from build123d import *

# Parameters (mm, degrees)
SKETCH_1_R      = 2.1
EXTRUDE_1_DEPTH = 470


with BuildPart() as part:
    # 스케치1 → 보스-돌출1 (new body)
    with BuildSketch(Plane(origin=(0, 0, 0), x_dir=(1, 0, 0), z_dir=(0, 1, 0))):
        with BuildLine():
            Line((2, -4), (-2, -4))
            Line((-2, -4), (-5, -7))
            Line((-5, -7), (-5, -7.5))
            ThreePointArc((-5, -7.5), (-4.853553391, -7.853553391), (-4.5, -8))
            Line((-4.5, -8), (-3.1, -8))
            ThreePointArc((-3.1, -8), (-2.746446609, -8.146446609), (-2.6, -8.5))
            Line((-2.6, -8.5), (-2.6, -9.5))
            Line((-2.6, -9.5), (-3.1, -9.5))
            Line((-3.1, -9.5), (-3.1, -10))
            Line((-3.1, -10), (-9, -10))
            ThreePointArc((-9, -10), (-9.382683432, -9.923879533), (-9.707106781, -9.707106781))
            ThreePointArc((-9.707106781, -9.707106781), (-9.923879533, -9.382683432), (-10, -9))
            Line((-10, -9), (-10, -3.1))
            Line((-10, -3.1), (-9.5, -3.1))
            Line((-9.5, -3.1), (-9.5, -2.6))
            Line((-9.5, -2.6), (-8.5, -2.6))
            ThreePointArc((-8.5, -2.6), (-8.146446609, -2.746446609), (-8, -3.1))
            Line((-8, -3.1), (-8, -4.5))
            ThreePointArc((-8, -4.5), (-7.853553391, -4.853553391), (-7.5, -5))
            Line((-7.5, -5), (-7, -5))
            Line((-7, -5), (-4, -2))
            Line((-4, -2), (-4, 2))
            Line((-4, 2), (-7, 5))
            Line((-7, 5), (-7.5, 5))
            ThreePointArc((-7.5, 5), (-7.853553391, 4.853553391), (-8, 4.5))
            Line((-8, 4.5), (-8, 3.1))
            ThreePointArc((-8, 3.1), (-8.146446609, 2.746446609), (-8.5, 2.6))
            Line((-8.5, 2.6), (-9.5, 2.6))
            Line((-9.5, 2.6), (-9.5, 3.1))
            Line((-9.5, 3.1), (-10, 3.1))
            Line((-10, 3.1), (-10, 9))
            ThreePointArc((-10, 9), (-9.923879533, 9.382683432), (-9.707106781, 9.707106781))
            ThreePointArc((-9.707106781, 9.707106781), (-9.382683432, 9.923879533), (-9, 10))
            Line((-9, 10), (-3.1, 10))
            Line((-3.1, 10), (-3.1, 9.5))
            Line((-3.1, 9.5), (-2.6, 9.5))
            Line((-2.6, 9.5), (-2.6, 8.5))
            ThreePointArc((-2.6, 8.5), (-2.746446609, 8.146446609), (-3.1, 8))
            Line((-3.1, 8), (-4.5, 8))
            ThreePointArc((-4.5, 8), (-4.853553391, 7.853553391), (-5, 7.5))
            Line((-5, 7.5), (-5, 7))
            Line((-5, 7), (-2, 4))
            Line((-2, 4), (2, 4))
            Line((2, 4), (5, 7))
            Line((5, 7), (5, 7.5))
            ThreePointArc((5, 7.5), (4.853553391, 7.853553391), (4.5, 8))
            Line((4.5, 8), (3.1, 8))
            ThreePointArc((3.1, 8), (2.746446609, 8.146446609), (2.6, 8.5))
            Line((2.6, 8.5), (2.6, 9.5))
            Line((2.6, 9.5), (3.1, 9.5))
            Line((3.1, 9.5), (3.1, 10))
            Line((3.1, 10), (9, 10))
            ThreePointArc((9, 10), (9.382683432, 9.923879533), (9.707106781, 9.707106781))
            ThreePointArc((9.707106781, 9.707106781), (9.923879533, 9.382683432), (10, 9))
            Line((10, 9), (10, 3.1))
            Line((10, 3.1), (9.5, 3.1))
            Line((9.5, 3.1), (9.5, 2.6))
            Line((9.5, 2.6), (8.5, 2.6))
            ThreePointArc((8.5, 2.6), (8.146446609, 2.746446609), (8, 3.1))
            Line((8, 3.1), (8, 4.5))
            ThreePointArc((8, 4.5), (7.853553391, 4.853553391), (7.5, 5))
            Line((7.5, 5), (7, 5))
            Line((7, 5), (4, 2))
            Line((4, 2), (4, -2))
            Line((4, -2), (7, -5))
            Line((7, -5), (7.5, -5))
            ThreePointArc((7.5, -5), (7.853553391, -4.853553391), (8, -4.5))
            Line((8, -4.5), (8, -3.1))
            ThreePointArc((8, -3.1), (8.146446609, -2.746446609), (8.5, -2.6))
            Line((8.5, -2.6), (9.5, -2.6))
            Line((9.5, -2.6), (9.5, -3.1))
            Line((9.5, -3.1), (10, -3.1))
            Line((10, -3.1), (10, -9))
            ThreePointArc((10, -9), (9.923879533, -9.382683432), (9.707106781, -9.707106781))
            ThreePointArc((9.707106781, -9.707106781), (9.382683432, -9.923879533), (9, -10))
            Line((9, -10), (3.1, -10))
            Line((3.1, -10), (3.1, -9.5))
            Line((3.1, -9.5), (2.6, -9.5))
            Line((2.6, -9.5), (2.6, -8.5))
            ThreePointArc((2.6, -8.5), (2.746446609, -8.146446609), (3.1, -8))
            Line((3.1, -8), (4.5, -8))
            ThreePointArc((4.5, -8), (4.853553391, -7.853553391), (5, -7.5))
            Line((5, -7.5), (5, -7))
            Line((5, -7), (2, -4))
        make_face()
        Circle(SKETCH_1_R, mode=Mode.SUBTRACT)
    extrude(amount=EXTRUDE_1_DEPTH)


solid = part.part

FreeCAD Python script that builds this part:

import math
import FreeCAD as App
import Part
import Sketcher

V = App.Vector
Q = App.Units.Quantity

doc = App.newDocument("Part")
params = doc.addObject("Spreadsheet::Sheet", "Params")
for row, (alias, value) in enumerate([
    ("sketch1_radius", "1 mm"),
    ("sketch1_diameter", "4.2 mm"),
    ("sketch1_radius2", "0.5 mm"),
    ("sketch1_width", "4 mm"),
    ("sketch1_width2", "1 mm"),
    ("pad1_length", "470 mm"),
], start=1):
    params.set(f"A{row}", alias)
    params.set(f"B{row}", "=" + value)
    params.setAlias(f"B{row}", alias)

body = doc.addObject("PartDesign::Body", "Body")

# Sketch on XZ plane
sketch1 = doc.addObject("Sketcher::SketchObject", "Sketch")
body.addObject(sketch1)
sketch1.AttachmentSupport = (doc.XZ_Plane, [""])
sketch1.MapMode = "FlatFace"
sketch1.addGeometry([
    Part.LineSegment(V(-2, 4, 0), V(2, 4, 0)),  # 0
    Part.LineSegment(V(2, 4, 0), V(5, 7, 0)),  # 1
    Part.LineSegment(V(5, 7, 0), V(5, 7.5, 0)),  # 2
    Part.ArcOfCircle(Part.Circle(V(4.5, 7.5, 0), V(0, 0, 1), 0.5), math.radians(0), math.radians(90)),  # 3
    Part.LineSegment(V(4.5, 8, 0), V(3.1, 8, 0)),  # 4
    Part.ArcOfCircle(Part.Circle(V(3.1, 8.5, 0), V(0, 0, 1), 0.5), math.radians(180), math.radians(270)),  # 5
    Part.LineSegment(V(2.6, 8.5, 0), V(2.6, 9.5, 0)),  # 6
    Part.LineSegment(V(2.6, 9.5, 0), V(3.1, 9.5, 0)),  # 7
    Part.LineSegment(V(3.1, 9.5, 0), V(3.1, 10, 0)),  # 8
    Part.LineSegment(V(3.1, 10, 0), V(9, 10, 0)),  # 9
    Part.ArcOfCircle(Part.Circle(V(9, 9, 0), V(0, 0, 1), 1), math.radians(45), math.radians(90)),  # 10
    Part.ArcOfCircle(Part.Circle(V(9, 9, 0), V(0, 0, 1), 1), math.radians(0), math.radians(45)),  # 11
    Part.LineSegment(V(10, 9, 0), V(10, 3.1, 0)),  # 12
    Part.LineSegment(V(10, 3.1, 0), V(9.5, 3.1, 0)),  # 13
    Part.LineSegment(V(9.5, 3.1, 0), V(9.5, 2.6, 0)),  # 14
    Part.LineSegment(V(9.5, 2.6, 0), V(8.5, 2.6, 0)),  # 15
    Part.ArcOfCircle(Part.Circle(V(8.5, 3.1, 0), V(0, 0, 1), 0.5), math.radians(180), math.radians(270)),  # 16
    Part.LineSegment(V(8, 3.1, 0), V(8, 4.5, 0)),  # 17
    Part.ArcOfCircle(Part.Circle(V(7.5, 4.5, 0), V(0, 0, 1), 0.5), math.radians(0), math.radians(90)),  # 18
    Part.LineSegment(V(7.5, 5, 0), V(7, 5, 0)),  # 19
    Part.LineSegment(V(7, 5, 0), V(4, 2, 0)),  # 20
    Part.LineSegment(V(4, 2, 0), V(4, -2, 0)),  # 21
    Part.LineSegment(V(4, -2, 0), V(7, -5, 0)),  # 22
    Part.LineSegment(V(7, -5, 0), V(7.5, -5, 0)),  # 23
    Part.ArcOfCircle(Part.Circle(V(7.5, -4.5, 0), V(0, 0, 1), 0.5), math.radians(-90), math.radians(0)),  # 24
    Part.LineSegment(V(8, -4.5, 0), V(8, -3.1, 0)),  # 25
    Part.ArcOfCircle(Part.Circle(V(8.5, -3.1, 0), V(0, 0, 1), 0.5), math.radians(90), math.radians(180)),  # 26
    Part.LineSegment(V(8.5, -2.6, 0), V(9.5, -2.6, 0)),  # 27
    Part.LineSegment(V(9.5, -2.6, 0), V(9.5, -3.1, 0)),  # 28
    Part.LineSegment(V(9.5, -3.1, 0), V(10, -3.1, 0)),  # 29
    Part.LineSegment(V(10, -3.1, 0), V(10, -9, 0)),  # 30
    Part.ArcOfCircle(Part.Circle(V(9, -9, 0), V(0, 0, 1), 1), math.radians(-45), math.radians(0)),  # 31
    Part.ArcOfCircle(Part.Circle(V(9, -9, 0), V(0, 0, 1), 1), math.radians(-90), math.radians(-45)),  # 32
    Part.LineSegment(V(9, -10, 0), V(3.1, -10, 0)),  # 33
    Part.LineSegment(V(3.1, -10, 0), V(3.1, -9.5, 0)),  # 34
    Part.LineSegment(V(3.1, -9.5, 0), V(2.6, -9.5, 0)),  # 35
    Part.LineSegment(V(2.6, -9.5, 0), V(2.6, -8.5, 0)),  # 36
    Part.ArcOfCircle(Part.Circle(V(3.1, -8.5, 0), V(0, 0, 1), 0.5), math.radians(90), math.radians(180)),  # 37
    Part.LineSegment(V(3.1, -8, 0), V(4.5, -8, 0)),  # 38
    Part.ArcOfCircle(Part.Circle(V(4.5, -7.5, 0), V(0, 0, 1), 0.5), math.radians(-90), math.radians(0)),  # 39
    Part.LineSegment(V(5, -7.5, 0), V(5, -7, 0)),  # 40
    Part.LineSegment(V(5, -7, 0), V(2, -4, 0)),  # 41
    Part.LineSegment(V(2, -4, 0), V(-2, -4, 0)),  # 42
    Part.LineSegment(V(-2, -4, 0), V(-5, -7, 0)),  # 43
    Part.LineSegment(V(-5, -7, 0), V(-5, -7.5, 0)),  # 44
    Part.ArcOfCircle(Part.Circle(V(-4.5, -7.5, 0), V(0, 0, 1), 0.5), math.radians(180), math.radians(270)),  # 45
    Part.LineSegment(V(-4.5, -8, 0), V(-3.1, -8, 0)),  # 46
    Part.ArcOfCircle(Part.Circle(V(-3.1, -8.5, 0), V(0, 0, 1), 0.5), math.radians(0), math.radians(90)),  # 47
    Part.LineSegment(V(-2.6, -8.5, 0), V(-2.6, -9.5, 0)),  # 48
    Part.LineSegment(V(-2.6, -9.5, 0), V(-3.1, -9.5, 0)),  # 49
    Part.LineSegment(V(-3.1, -9.5, 0), V(-3.1, -10, 0)),  # 50
    Part.LineSegment(V(-3.1, -10, 0), V(-9, -10, 0)),  # 51
    Part.ArcOfCircle(Part.Circle(V(-9, -9, 0), V(0, 0, 1), 1), math.radians(-135), math.radians(-90)),  # 52
    Part.ArcOfCircle(Part.Circle(V(-9, -9, 0), V(0, 0, 1), 1), math.radians(180), math.radians(225)),  # 53
    Part.LineSegment(V(-10, -9, 0), V(-10, -3.1, 0)),  # 54
    Part.LineSegment(V(-10, -3.1, 0), V(-9.5, -3.1, 0)),  # 55
    Part.LineSegment(V(-9.5, -3.1, 0), V(-9.5, -2.6, 0)),  # 56
    Part.LineSegment(V(-9.5, -2.6, 0), V(-8.5, -2.6, 0)),  # 57
    Part.ArcOfCircle(Part.Circle(V(-8.5, -3.1, 0), V(0, 0, 1), 0.5), math.radians(0), math.radians(90)),  # 58
    Part.LineSegment(V(-8, -3.1, 0), V(-8, -4.5, 0)),  # 59
    Part.ArcOfCircle(Part.Circle(V(-7.5, -4.5, 0), V(0, 0, 1), 0.5), math.radians(180), math.radians(270)),  # 60
    Part.LineSegment(V(-7.5, -5, 0), V(-7, -5, 0)),  # 61
    Part.LineSegment(V(-7, -5, 0), V(-4, -2, 0)),  # 62
    Part.LineSegment(V(-4, -2, 0), V(-4, 2, 0)),  # 63
    Part.LineSegment(V(-4, 2, 0), V(-7, 5, 0)),  # 64
    Part.LineSegment(V(-7, 5, 0), V(-7.5, 5, 0)),  # 65
    Part.ArcOfCircle(Part.Circle(V(-7.5, 4.5, 0), V(0, 0, 1), 0.5), math.radians(90), math.radians(180)),  # 66
    Part.LineSegment(V(-8, 4.5, 0), V(-8, 3.1, 0)),  # 67
    Part.ArcOfCircle(Part.Circle(V(-8.5, 3.1, 0), V(0, 0, 1), 0.5), math.radians(-90), math.radians(0)),  # 68
    Part.LineSegment(V(-8.5, 2.6, 0), V(-9.5, 2.6, 0)),  # 69
    Part.LineSegment(V(-9.5, 2.6, 0), V(-9.5, 3.1, 0)),  # 70
    Part.LineSegment(V(-9.5, 3.1, 0), V(-10, 3.1, 0)),  # 71
    Part.LineSegment(V(-10, 3.1, 0), V(-10, 9, 0)),  # 72
    Part.ArcOfCircle(Part.Circle(V(-9, 9, 0), V(0, 0, 1), 1), math.radians(135), math.radians(180)),  # 73
    Part.ArcOfCircle(Part.Circle(V(-9, 9, 0), V(0, 0, 1), 1), math.radians(90), math.radians(135)),  # 74
    Part.LineSegment(V(-9, 10, 0), V(-3.1, 10, 0)),  # 75
    Part.LineSegment(V(-3.1, 10, 0), V(-3.1, 9.5, 0)),  # 76
    Part.LineSegment(V(-3.1, 9.5, 0), V(-2.6, 9.5, 0)),  # 77
    Part.LineSegment(V(-2.6, 9.5, 0), V(-2.6, 8.5, 0)),  # 78
    Part.ArcOfCircle(Part.Circle(V(-3.1, 8.5, 0), V(0, 0, 1), 0.5), math.radians(-90), math.radians(0)),  # 79
    Part.LineSegment(V(-3.1, 8, 0), V(-4.5, 8, 0)),  # 80
    Part.ArcOfCircle(Part.Circle(V(-4.5, 7.5, 0), V(0, 0, 1), 0.5), math.radians(90), math.radians(180)),  # 81
    Part.LineSegment(V(-5, 7.5, 0), V(-5, 7, 0)),  # 82
    Part.LineSegment(V(-5, 7, 0), V(-2, 4, 0)),  # 83
    Part.Circle(V(0, 0, 0), V(0, 0, 1), 2.1),  # 84
], False)
sketch1.addConstraint([
    Sketcher.Constraint("Coincident", 0, 2, 1, 1),
    Sketcher.Constraint("Coincident", 1, 2, 2, 1),
    Sketcher.Constraint("Tangent", 2, 2, 3, 1),
    Sketcher.Constraint("Tangent", 3, 2, 4, 1),
    Sketcher.Constraint("Tangent", 4, 2, 5, 2),
    Sketcher.Constraint("Tangent", 5, 1, 6, 1),
    Sketcher.Constraint("Coincident", 6, 2, 7, 1),
    Sketcher.Constraint("Coincident", 7, 2, 8, 1),
    Sketcher.Constraint("Coincident", 8, 2, 9, 1),
    Sketcher.Constraint("Tangent", 9, 2, 10, 2),
    Sketcher.Constraint("Tangent", 10, 1, 11, 2),
    Sketcher.Constraint("Tangent", 11, 1, 12, 1),
    Sketcher.Constraint("Coincident", 12, 2, 13, 1),
    Sketcher.Constraint("Coincident", 13, 2, 14, 1),
    Sketcher.Constraint("Coincident", 14, 2, 15, 1),
    Sketcher.Constraint("Tangent", 15, 2, 16, 2),
    Sketcher.Constraint("Tangent", 16, 1, 17, 1),
    Sketcher.Constraint("Tangent", 17, 2, 18, 1),
    Sketcher.Constraint("Tangent", 18, 2, 19, 1),
    Sketcher.Constraint("Coincident", 19, 2, 20, 1),
    Sketcher.Constraint("Coincident", 20, 2, 21, 1),
    Sketcher.Constraint("Coincident", 21, 2, 22, 1),
    Sketcher.Constraint("Coincident", 22, 2, 23, 1),
    Sketcher.Constraint("Tangent", 23, 2, 24, 1),
    Sketcher.Constraint("Tangent", 24, 2, 25, 1),
    Sketcher.Constraint("Tangent", 25, 2, 26, 2),
    Sketcher.Constraint("Tangent", 26, 1, 27, 1),
    Sketcher.Constraint("Coincident", 27, 2, 28, 1),
    Sketcher.Constraint("Coincident", 28, 2, 29, 1),
    Sketcher.Constraint("Coincident", 29, 2, 30, 1),
    Sketcher.Constraint("Tangent", 30, 2, 31, 2),
    Sketcher.Constraint("Tangent", 31, 1, 32, 2),
    Sketcher.Constraint("Tangent", 32, 1, 33, 1),
    Sketcher.Constraint("Coincident", 33, 2, 34, 1),
    Sketcher.Constraint("Coincident", 34, 2, 35, 1),
    Sketcher.Constraint("Coincident", 35, 2, 36, 1),
    Sketcher.Constraint("Tangent", 36, 2, 37, 2),
    Sketcher.Constraint("Tangent", 37, 1, 38, 1),
    Sketcher.Constraint("Tangent", 38, 2, 39, 1),
    Sketcher.Constraint("Tangent", 39, 2, 40, 1),
    Sketcher.Constraint("Coincident", 40, 2, 41, 1),
    Sketcher.Constraint("Coincident", 41, 2, 42, 1),
    Sketcher.Constraint("Coincident", 42, 2, 43, 1),
    Sketcher.Constraint("Coincident", 43, 2, 44, 1),
    Sketcher.Constraint("Tangent", 44, 2, 45, 1),
    Sketcher.Constraint("Tangent", 45, 2, 46, 1),
    Sketcher.Constraint("Tangent", 46, 2, 47, 2),
    Sketcher.Constraint("Tangent", 47, 1, 48, 1),
    Sketcher.Constraint("Coincident", 48, 2, 49, 1),
    Sketcher.Constraint("Coincident", 49, 2, 50, 1),
    Sketcher.Constraint("Coincident", 50, 2, 51, 1),
    Sketcher.Constraint("Tangent", 51, 2, 52, 2),
    Sketcher.Constraint("Tangent", 52, 1, 53, 2),
    Sketcher.Constraint("Tangent", 53, 1, 54, 1),
    Sketcher.Constraint("Coincident", 54, 2, 55, 1),
    Sketcher.Constraint("Coincident", 55, 2, 56, 1),
    Sketcher.Constraint("Coincident", 56, 2, 57, 1),
    Sketcher.Constraint("Tangent", 57, 2, 58, 2),
    Sketcher.Constraint("Tangent", 58, 1, 59, 1),
    Sketcher.Constraint("Tangent", 59, 2, 60, 1),
    Sketcher.Constraint("Tangent", 60, 2, 61, 1),
    Sketcher.Constraint("Coincident", 61, 2, 62, 1),
    Sketcher.Constraint("Coincident", 62, 2, 63, 1),
    Sketcher.Constraint("Coincident", 63, 2, 64, 1),
    Sketcher.Constraint("Coincident", 64, 2, 65, 1),
    Sketcher.Constraint("Tangent", 65, 2, 66, 1),
    Sketcher.Constraint("Tangent", 66, 2, 67, 1),
    Sketcher.Constraint("Tangent", 67, 2, 68, 2),
    Sketcher.Constraint("Tangent", 68, 1, 69, 1),
    Sketcher.Constraint("Coincident", 69, 2, 70, 1),
    Sketcher.Constraint("Coincident", 70, 2, 71, 1),
    Sketcher.Constraint("Coincident", 71, 2, 72, 1),
    Sketcher.Constraint("Tangent", 72, 2, 73, 2),
    Sketcher.Constraint("Tangent", 73, 1, 74, 2),
    Sketcher.Constraint("Tangent", 74, 1, 75, 1),
    Sketcher.Constraint("Coincident", 75, 2, 76, 1),
    Sketcher.Constraint("Coincident", 76, 2, 77, 1),
    Sketcher.Constraint("Coincident", 77, 2, 78, 1),
    Sketcher.Constraint("Tangent", 78, 2, 79, 2),
    Sketcher.Constraint("Tangent", 79, 1, 80, 1),
    Sketcher.Constraint("Tangent", 80, 2, 81, 1),
    Sketcher.Constraint("Tangent", 81, 2, 82, 1),
    Sketcher.Constraint("Coincident", 82, 2, 83, 1),
    Sketcher.Constraint("Coincident", 83, 2, 0, 1),
    Sketcher.Constraint("Horizontal", 0),
    Sketcher.Constraint("Vertical", 2),
    Sketcher.Constraint("Horizontal", 4),
    Sketcher.Constraint("Vertical", 6),
    Sketcher.Constraint("Horizontal", 7),
    Sketcher.Constraint("Vertical", 8),
    Sketcher.Constraint("Horizontal", 9),
    Sketcher.Constraint("Vertical", 12),
    Sketcher.Constraint("Horizontal", 13),
    Sketcher.Constraint("Vertical", 14),
    Sketcher.Constraint("Horizontal", 15),
    Sketcher.Constraint("Vertical", 17),
    Sketcher.Constraint("Horizontal", 19),
    Sketcher.Constraint("Vertical", 21),
    Sketcher.Constraint("Horizontal", 23),
    Sketcher.Constraint("Vertical", 25),
    Sketcher.Constraint("Horizontal", 27),
    Sketcher.Constraint("Vertical", 28),
    Sketcher.Constraint("Horizontal", 29),
    Sketcher.Constraint("Vertical", 30),
    Sketcher.Constraint("Horizontal", 33),
    Sketcher.Constraint("Vertical", 34),
    Sketcher.Constraint("Horizontal", 35),
    Sketcher.Constraint("Vertical", 36),
    Sketcher.Constraint("Horizontal", 38),
    Sketcher.Constraint("Vertical", 40),
    Sketcher.Constraint("Horizontal", 42),
    Sketcher.Constraint("Vertical", 44),
    Sketcher.Constraint("Horizontal", 46),
    Sketcher.Constraint("Vertical", 48),
    Sketcher.Constraint("Horizontal", 49),
    Sketcher.Constraint("Vertical", 50),
    Sketcher.Constraint("Horizontal", 51),
    Sketcher.Constraint("Vertical", 54),
    Sketcher.Constraint("Horizontal", 55),
    Sketcher.Constraint("Vertical", 56),
    Sketcher.Constraint("Horizontal", 57),
    Sketcher.Constraint("Vertical", 59),
    Sketcher.Constraint("Horizontal", 61),
    Sketcher.Constraint("Vertical", 63),
    Sketcher.Constraint("Horizontal", 65),
    Sketcher.Constraint("Vertical", 67),
    Sketcher.Constraint("Horizontal", 69),
    Sketcher.Constraint("Vertical", 70),
    Sketcher.Constraint("Horizontal", 71),
    Sketcher.Constraint("Vertical", 72),
    Sketcher.Constraint("Horizontal", 75),
    Sketcher.Constraint("Vertical", 76),
    Sketcher.Constraint("Horizontal", 77),
    Sketcher.Constraint("Vertical", 78),
    Sketcher.Constraint("Horizontal", 80),
    Sketcher.Constraint("Vertical", 82),
    Sketcher.Constraint("Coincident", 84, 3, -1, 1),
    Sketcher.Constraint("Equal", 3, 5),
    Sketcher.Constraint("Equal", 10, 11),
    Sketcher.Constraint("Equal", 5, 16),
    Sketcher.Constraint("Equal", 16, 18),
    Sketcher.Constraint("Equal", 18, 24),
    Sketcher.Constraint("Equal", 24, 26),
    Sketcher.Constraint("Equal", 11, 31),
    Sketcher.Constraint("Equal", 31, 32),
    Sketcher.Constraint("Equal", 26, 37),
    Sketcher.Constraint("Equal", 37, 39),
    Sketcher.Constraint("Equal", 39, 45),
    Sketcher.Constraint("Equal", 45, 47),
    Sketcher.Constraint("Equal", 32, 52),
    Sketcher.Constraint("Equal", 52, 53),
    Sketcher.Constraint("Equal", 47, 58),
    Sketcher.Constraint("Equal", 58, 60),
    Sketcher.Constraint("Equal", 60, 66),
    Sketcher.Constraint("Equal", 66, 68),
    Sketcher.Constraint("Equal", 53, 73),
    Sketcher.Constraint("Equal", 73, 74),
    Sketcher.Constraint("Equal", 68, 79),
    Sketcher.Constraint("Equal", 79, 81),
    Sketcher.Constraint("Symmetric", 3, 3, 45, 3, -1, 1),
    Sketcher.Constraint("Symmetric", 10, 3, 52, 3, -1, 1),
    Sketcher.Constraint("Symmetric", 16, 3, 58, 3, -1, 1),
    Sketcher.Constraint("Symmetric", 24, 3, 66, 3, -1, 1),
    Sketcher.Constraint("Symmetric", 31, 3, 73, 3, -1, 1),
    Sketcher.Constraint("Symmetric", 37, 3, 79, 3, -1, 1),
    Sketcher.Constraint("Symmetric", 0, 2, 42, 2, -1, 1),
    Sketcher.Constraint("Symmetric", 6, 2, 48, 2, -1, 1),
    Sketcher.Constraint("Symmetric", 13, 2, 55, 2, -1, 1),
    Sketcher.Constraint("Symmetric", 19, 2, 61, 2, -1, 1),
    Sketcher.Constraint("Symmetric", 20, 2, 62, 2, -1, 1),
    Sketcher.Constraint("Symmetric", 27, 2, 69, 2, -1, 1),
    Sketcher.Constraint("Symmetric", 34, 2, 76, 2, -1, 1),
    Sketcher.Constraint("Symmetric", 40, 2, 82, 2, -1, 1),
    Sketcher.Constraint("Symmetric", 39, 3, 45, 3, -2),
    Sketcher.Constraint("Symmetric", 31, 3, 52, 3, -2),
    Sketcher.Constraint("Symmetric", 26, 3, 58, 3, -2),
    Sketcher.Constraint("Symmetric", 35, 2, 48, 2, -2),
    Sketcher.Constraint("Symmetric", 28, 2, 55, 2, -2),
    Sketcher.Constraint("Symmetric", 22, 2, 61, 2, -2),
    Sketcher.Constraint("Parallel", 1, 20),
    Sketcher.Constraint("Perpendicular", 20, 22),
    Sketcher.Constraint("Parallel", 22, 41),
    Sketcher.Constraint("Perpendicular", 41, 43),
    Sketcher.Constraint("Perpendicular", 62, 64),
    Sketcher.Constraint("Parallel", 64, 83),
    Sketcher.Constraint("Horizontal", 68, 3, 12, 2),
    Sketcher.Constraint("Horizontal", 40, 2, 43, 2),
    Sketcher.Constraint("Horizontal", 31, 1, 52, 1),
    Sketcher.Constraint("Horizontal", 21, 2, 62, 2),
    Sketcher.Constraint("Horizontal", 20, 2, 63, 2),
    Sketcher.Constraint("Horizontal", 67, 2, 70, 2),
    Sketcher.Constraint("Horizontal", 10, 1, 73, 1),
    Sketcher.Constraint("Vertical", 4, 2, 7, 2),
    Sketcher.Constraint("Vertical", 10, 1, 31, 1),
    Sketcher.Constraint("Vertical", 8, 2, 33, 2),
    Sketcher.Constraint("Vertical", 46, 2, 49, 2),
    Sketcher.Constraint("Equal", 7, 13),
    Sketcher.Constraint("Equal", 13, 19),
    Sketcher.Constraint("Equal", 77, 2),
    Sketcher.Constraint("Equal", 69, 6),
    Sketcher.Constraint("Equal", 2, 8),
    Sketcher.Constraint("Equal", 75, 12),
    Sketcher.Constraint("Equal", 80, 17),
    Sketcher.Constraint("Equal", 42, 21),
    Sketcher.Constraint("Equal", 1, 20),
    Sketcher.Constraint("Radius", 10, Q("1 mm")),
    Sketcher.Constraint("Diameter", 84, Q("4.2 mm")),
    Sketcher.Constraint("Radius", 3, Q("0.5 mm")),
    Sketcher.Constraint("DistanceX", 0, 1, 0, 2, Q("4 mm")),
    Sketcher.Constraint("DistanceX", 15, 2, 15, 1, Q("1 mm")),
    Sketcher.Constraint("DistanceX", 4, 2, 4, 1, Q("1.4 mm")),
    Sketcher.Constraint("DistanceX", 9, 1, 9, 2, Q("5.9 mm")),
    Sketcher.Constraint("DistanceX", -1, 1, 10, 3, Q("9 mm")),
    Sketcher.Constraint("DistanceX", -1, 1, 10, 1, Q("9.707107 mm")),
])
sketch1.setExpression("Constraints[205]", "Params.sketch1_radius")
sketch1.setExpression("Constraints[206]", "Params.sketch1_diameter")
sketch1.setExpression("Constraints[207]", "Params.sketch1_radius2")
sketch1.setExpression("Constraints[208]", "Params.sketch1_width")
sketch1.setExpression("Constraints[209]", "Params.sketch1_width2")
pad1 = doc.addObject("PartDesign::Pad", "Pad")
body.addObject(pad1)
pad1.Profile = sketch1
pad1.setExpression("Length", "Params.pad1_length")
pad1.Reversed = True

doc.recompute()
